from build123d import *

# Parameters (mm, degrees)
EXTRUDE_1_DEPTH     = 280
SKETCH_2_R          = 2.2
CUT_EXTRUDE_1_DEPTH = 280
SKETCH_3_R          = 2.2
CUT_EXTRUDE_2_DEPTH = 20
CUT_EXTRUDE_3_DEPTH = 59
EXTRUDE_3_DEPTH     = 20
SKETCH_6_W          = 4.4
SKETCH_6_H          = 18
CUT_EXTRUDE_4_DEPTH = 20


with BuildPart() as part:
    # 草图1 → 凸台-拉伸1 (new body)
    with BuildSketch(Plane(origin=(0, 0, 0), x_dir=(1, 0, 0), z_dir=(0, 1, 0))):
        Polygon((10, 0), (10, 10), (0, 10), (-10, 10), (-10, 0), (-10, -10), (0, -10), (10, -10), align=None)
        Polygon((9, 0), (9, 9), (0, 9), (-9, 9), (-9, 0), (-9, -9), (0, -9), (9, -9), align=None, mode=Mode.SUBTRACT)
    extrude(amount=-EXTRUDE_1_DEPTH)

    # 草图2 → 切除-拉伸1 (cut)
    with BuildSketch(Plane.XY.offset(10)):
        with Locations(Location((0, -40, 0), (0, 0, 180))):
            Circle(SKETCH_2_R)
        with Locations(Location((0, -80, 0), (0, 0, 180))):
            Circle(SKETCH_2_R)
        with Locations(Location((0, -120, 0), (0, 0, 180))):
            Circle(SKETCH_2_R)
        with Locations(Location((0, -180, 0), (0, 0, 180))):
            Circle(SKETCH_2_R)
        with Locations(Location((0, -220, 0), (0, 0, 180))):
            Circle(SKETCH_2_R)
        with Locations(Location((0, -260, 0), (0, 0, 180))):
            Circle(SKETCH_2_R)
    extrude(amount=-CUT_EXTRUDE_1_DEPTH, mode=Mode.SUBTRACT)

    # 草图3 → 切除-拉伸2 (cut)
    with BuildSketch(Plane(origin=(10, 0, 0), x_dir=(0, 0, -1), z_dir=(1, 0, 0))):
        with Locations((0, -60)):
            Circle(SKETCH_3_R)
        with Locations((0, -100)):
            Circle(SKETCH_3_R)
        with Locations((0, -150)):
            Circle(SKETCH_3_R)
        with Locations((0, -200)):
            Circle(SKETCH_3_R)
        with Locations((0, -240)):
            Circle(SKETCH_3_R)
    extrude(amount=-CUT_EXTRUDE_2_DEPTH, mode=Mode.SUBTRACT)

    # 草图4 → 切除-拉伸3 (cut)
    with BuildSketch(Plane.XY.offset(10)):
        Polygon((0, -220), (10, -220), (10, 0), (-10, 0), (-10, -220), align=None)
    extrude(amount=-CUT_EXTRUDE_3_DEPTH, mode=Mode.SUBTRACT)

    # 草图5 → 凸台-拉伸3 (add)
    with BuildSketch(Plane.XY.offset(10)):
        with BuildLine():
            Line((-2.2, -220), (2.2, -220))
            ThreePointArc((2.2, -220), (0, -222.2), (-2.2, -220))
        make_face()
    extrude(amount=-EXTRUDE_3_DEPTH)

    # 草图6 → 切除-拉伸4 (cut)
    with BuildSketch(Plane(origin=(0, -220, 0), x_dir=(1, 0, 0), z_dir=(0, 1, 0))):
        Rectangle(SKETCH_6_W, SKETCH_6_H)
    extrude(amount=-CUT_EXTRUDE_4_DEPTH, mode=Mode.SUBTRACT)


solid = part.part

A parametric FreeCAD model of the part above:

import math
import FreeCAD as App
import Part
import Sketcher

V = App.Vector

doc = App.newDocument("Part")
body = doc.addObject("PartDesign::Body", "Body")

# Sketch on XZ plane
sketch1 = doc.addObject("Sketcher::SketchObject", "Sketch")
body.addObject(sketch1)
sketch1.AttachmentSupport = (doc.XZ_Plane, [""])
sketch1.MapMode = "FlatFace"
sketch1.addGeometry(Part.LineSegment(V(10, -10, 0), V(-10, -10, 0)), False)
sketch1.addGeometry(Part.LineSegment(V(-10, -10, 0), V(-10, 10, 0)), False)
sketch1.addGeometry(Part.LineSegment(V(-10, 10, 0), V(10, 10, 0)), False)
sketch1.addGeometry(Part.LineSegment(V(10, 10, 0), V(10, -10, 0)), False)
sketch1.addGeometry(Part.LineSegment(V(9, -9, 0), V(9, 9, 0)), False)
sketch1.addGeometry(Part.LineSegment(V(9, 9, 0), V(-9, 9, 0)), False)
sketch1.addGeometry(Part.LineSegment(V(-9, 9, 0), V(-9, -9, 0)), False)
sketch1.addGeometry(Part.LineSegment(V(-9, -9, 0), V(9, -9, 0)), False)
sketch1.addConstraint(Sketcher.Constraint("Coincident", 0, 2, 1, 1))
sketch1.addConstraint(Sketcher.Constraint("Coincident", 1, 2, 2, 1))
sketch1.addConstraint(Sketcher.Constraint("Coincident", 2, 2, 3, 1))
sketch1.addConstraint(Sketcher.Constraint("Coincident", 3, 2, 0, 1))
sketch1.addConstraint(Sketcher.Constraint("Coincident", 4, 2, 5, 1))
sketch1.addConstraint(Sketcher.Constraint("Coincident", 5, 2, 6, 1))
sketch1.addConstraint(Sketcher.Constraint("Coincident", 6, 2, 7, 1))
sketch1.addConstraint(Sketcher.Constraint("Coincident", 7, 2, 4, 1))
sketch1.addConstraint(Sketcher.Constraint("Horizontal", 0))
sketch1.addConstraint(Sketcher.Constraint("Vertical", 1))
sketch1.addConstraint(Sketcher.Constraint("Horizontal", 2))
sketch1.addConstraint(Sketcher.Constraint("Vertical", 3))
sketch1.addConstraint(Sketcher.Constraint("Vertical", 4))
sketch1.addConstraint(Sketcher.Constraint("Horizontal", 5))
sketch1.addConstraint(Sketcher.Constraint("Vertical", 6))
sketch1.addConstraint(Sketcher.Constraint("Horizontal", 7))
sketch1.addConstraint(Sketcher.Constraint("Symmetric", 0, 2, 2, 2, -1, 1))
sketch1.addConstraint(Sketcher.Constraint("Symmetric", 4, 2, 6, 2, -1, 1))
sketch1.addConstraint(Sketcher.Constraint("Equal", 2, 1))
sketch1.addConstraint(Sketcher.Constraint("Equal", 7, 4))
sketch1.addConstraint(Sketcher.Constraint("DistanceX", 0, 2, 0, 1, 20.0))
sketch1.addConstraint(Sketcher.Constraint("DistanceX", 5, 2, 5, 1, 18.0))
pad1 = doc.addObject("PartDesign::Pad", "Pad")
body.addObject(pad1)
pad1.Profile = sketch1
pad1.Length = 280

# Sketch on XY plane
sketch2 = doc.addObject("Sketcher::SketchObject", "Sketch001")
body.addObject(sketch2)
sketch2.AttachmentSupport = (doc.XY_Plane, [""])
sketch2.MapMode = "FlatFace"
sketch2.AttachmentOffset = App.Placement(V(0, 0, 10), App.Rotation())
sketch2.addGeometry(Part.Circle(V(0, -40, 0), V(0, 0, 1), 2.2), False)
sketch2.addGeometry(Part.Circle(V(0, -80, 0), V(0, 0, 1), 2.2), False)
sketch2.addGeometry(Part.Circle(V(0, -120, 0), V(0, 0, 1), 2.2), False)
sketch2.addGeometry(Part.Circle(V(0, -180, 0), V(0, 0, 1), 2.2), False)
sketch2.addGeometry(Part.Circle(V(0, -220, 0), V(0, 0, 1), 2.2), False)
sketch2.addGeometry(Part.Circle(V(0, -260, 0), V(0, 0, 1), 2.2), False)
sketch2.addConstraint(Sketcher.Constraint("Equal", 0, 1))
sketch2.addConstraint(Sketcher.Constraint("Equal", 1, 2))
sketch2.addConstraint(Sketcher.Constraint("Equal", 2, 3))
sketch2.addConstraint(Sketcher.Constraint("Equal", 3, 4))
sketch2.addConstraint(Sketcher.Constraint("Equal", 4, 5))
sketch2.addConstraint(Sketcher.Constraint("PointOnObject", 0, 3, -2))
sketch2.addConstraint(Sketcher.Constraint("PointOnObject", 1, 3, -2))
sketch2.addConstraint(Sketcher.Constraint("PointOnObject", 2, 3, -2))
sketch2.addConstraint(Sketcher.Constraint("PointOnObject", 3, 3, -2))
sketch2.addConstraint(Sketcher.Constraint("PointOnObject", 4, 3, -2))
sketch2.addConstraint(Sketcher.Constraint("PointOnObject", 5, 3, -2))
sketch2.addConstraint(Sketcher.Constraint("Diameter", 0, 4.4))
sketch2.addConstraint(Sketcher.Constraint("DistanceY", 0, 3, -1, 1, 40.0))
sketch2.addConstraint(Sketcher.Constraint("DistanceY", 1, 3, -1, 1, 80.0))
sketch2.addConstraint(Sketcher.Constraint("DistanceY", 2, 3, -1, 1, 120.0))
sketch2.addConstraint(Sketcher.Constraint("DistanceY", 3, 3, -1, 1, 180.0))
sketch2.addConstraint(Sketcher.Constraint("DistanceY", 4, 3, -1, 1, 220.0))
sketch2.addConstraint(Sketcher.Constraint("DistanceY", 5, 3, -1, 1, 260.0))
pocket1 = doc.addObject("PartDesign::Pocket", "Pocket")
body.addObject(pocket1)
pocket1.Profile = sketch2
pocket1.Length = 280

# Sketch on YZ plane
sketch3 = doc.addObject("Sketcher::SketchObject", "Sketch002")
body.addObject(sketch3)
sketch3.AttachmentSupport = (doc.YZ_Plane, [""])
sketch3.MapMode = "FlatFace"
sketch3.AttachmentOffset = App.Placement(V(0, 0, 10), App.Rotation())
sketch3.addGeometry(Part.Circle(V(-60, 0, 0), V(0, 0, 1), 2.2), False)
sketch3.addGeometry(Part.Circle(V(-100, 0, 0), V(0, 0, 1), 2.2), False)
sketch3.addGeometry(Part.Circle(V(-150, 0, 0), V(0, 0, 1), 2.2), False)
sketch3.addGeometry(Part.Circle(V(-200, 0, 0), V(0, 0, 1), 2.2), False)
sketch3.addGeometry(Part.Circle(V(-240, 0, 0), V(0, 0, 1), 2.2), False)
sketch3.addConstraint(Sketcher.Constraint("Equal", 0, 1))
sketch3.addConstraint(Sketcher.Constraint("Equal", 1, 2))
sketch3.addConstraint(Sketcher.Constraint("Equal", 2, 3))
sketch3.addConstraint(Sketcher.Constraint("Equal", 3, 4))
sketch3.addConstraint(Sketcher.Constraint("PointOnObject", 0, 3, -1))
sketch3.addConstraint(Sketcher.Constraint("PointOnObject", 1, 3, -1))
sketch3.addConstraint(Sketcher.Constraint("PointOnObject", 2, 3, -1))
sketch3.addConstraint(Sketcher.Constraint("PointOnObject", 3, 3, -1))
sketch3.addConstraint(Sketcher.Constraint("PointOnObject", 4, 3, -1))
sketch3.addConstraint(Sketcher.Constraint("Diameter", 0, 4.4))
sketch3.addConstraint(Sketcher.Constraint("DistanceX", 0, 3, -1, 1, 60.0))
sketch3.addConstraint(Sketcher.Constraint("DistanceX", 1, 3, -1, 1, 100.0))
sketch3.addConstraint(Sketcher.Constraint("DistanceX", 2, 3, -1, 1, 150.0))
sketch3.addConstraint(Sketcher.Constraint("DistanceX", 3, 3, -1, 1, 200.0))
sketch3.addConstraint(Sketcher.Constraint("DistanceX", 4, 3, -1, 1, 240.0))
pocket2 = doc.addObject("PartDesign::Pocket", "Pocket001")
body.addObject(pocket2)
pocket2.Profile = sketch3
pocket2.Length = 20

# Sketch on XY plane
sketch4 = doc.addObject("Sketcher::SketchObject", "Sketch003")
body.addObject(sketch4)
sketch4.AttachmentSupport = (doc.XY_Plane, [""])
sketch4.MapMode = "FlatFace"
sketch4.AttachmentOffset = App.Placement(V(0, 0, 10), App.Rotation())
sketch4.addGeometry(Part.LineSegment(V(10, -220, 0), V(10, 0, 0)), False)
sketch4.addGeometry(Part.LineSegment(V(10, 0, 0), V(-10, 0, 0)), False)
sketch4.addGeometry(Part.LineSegment(V(-10, 0, 0), V(-10, -220, 0)), False)
sketch4.addGeometry(Part.LineSegment(V(-10, -220, 0), V(10, -220, 0)), False)
sketch4.addConstraint(Sketcher.Constraint("Coincident", 0, 2, 1, 1))
sketch4.addConstraint(Sketcher.Constraint("Coincident", 1, 2, 2, 1))
sketch4.addConstraint(Sketcher.Constraint("Coincident", 2, 2, 3, 1))
sketch4.addConstraint(Sketcher.Constraint("Coincident", 3, 2, 0, 1))
sketch4.addConstraint(Sketcher.Constraint("Vertical", 0))
sketch4.addConstraint(Sketcher.Constraint("Horizontal", 1))
sketch4.addConstraint(Sketcher.Constraint("Vertical", 2))
sketch4.addConstraint(Sketcher.Constraint("Horizontal", 3))
sketch4.addConstraint(Sketcher.Constraint("Symmetric", 0, 2, 1, 2, -1, 1))
sketch4.addConstraint(Sketcher.Constraint("DistanceX", 1, 2, 1, 1, 20.0))
sketch4.addConstraint(Sketcher.Constraint("DistanceY", 0, 1, 0, 2, 220.0))
pocket3 = doc.addObject("PartDesign::Pocket", "Pocket002")
body.addObject(pocket3)
pocket3.Profile = sketch4
pocket3.Length = 59

# Sketch on XY plane
sketch5 = doc.addObject("Sketcher::SketchObject", "Sketch004")
body.addObject(sketch5)
sketch5.AttachmentSupport = (doc.XY_Plane, [""])
sketch5.MapMode = "FlatFace"
sketch5.AttachmentOffset = App.Placement(V(0, 0, 10), App.Rotation())
sketch5.addGeometry(Part.LineSegment(V(2.2, -220, 0), V(-2.2, -220, 0)), False)
sketch5.addGeometry(Part.ArcOfCircle(Part.Circle(V(0, -220, 0), V(0, 0, 1), 2.2), math.radians(180), math.radians(360)), False)
sketch5.addConstraint(Sketcher.Constraint("Coincident", 0, 1, 1, 2))
sketch5.addConstraint(Sketcher.Constraint("Coincident", 1, 1, 0, 2))
sketch5.addConstraint(Sketcher.Constraint("Horizontal", 0))
sketch5.addConstraint(Sketcher.Constraint("PointOnObject", 1, 3, -2))
sketch5.addConstraint(Sketcher.Constraint("Horizontal", 1, 3, 0, 1))
sketch5.addConstraint(Sketcher.Constraint("Radius", 1, 2.2))
sketch5.addConstraint(Sketcher.Constraint("DistanceY", 1, 3, -1, 1, 220.0))
pad2 = doc.addObject("PartDesign::Pad", "Pad001")
body.addObject(pad2)
pad2.Profile = sketch5
pad2.Length = 20
pad2.Reversed = True

# Sketch on XZ plane
sketch6 = doc.addObject("Sketcher::SketchObject", "Sketch005")
body.addObject(sketch6)
sketch6.AttachmentSupport = (doc.XZ_Plane, [""])
sketch6.MapMode = "FlatFace"
sketch6.AttachmentOffset = App.Placement(V(0, 0, 220), App.Rotation())
sketch6.addGeometry(Part.LineSegment(V(-2.2, -9, 0), V(-2.2, 9, 0)), False)
sketch6.addGeometry(Part.LineSegment(V(-2.2, 9, 0), V(2.2, 9, 0)), False)
sketch6.addGeometry(Part.LineSegment(V(2.2, 9, 0), V(2.2, -9, 0)), False)
sketch6.addGeometry(Part.LineSegment(V(2.2, -9, 0), V(-2.2, -9, 0)), False)
sketch6.addConstraint(Sketcher.Constraint("Coincident", 0, 2, 1, 1))
sketch6.addConstraint(Sketcher.Constraint("Coincident", 1, 2, 2, 1))
sketch6.addConstraint(Sketcher.Constraint("Coincident", 2, 2, 3, 1))
sketch6.addConstraint(Sketcher.Constraint("Coincident", 3, 2, 0, 1))
sketch6.addConstraint(Sketcher.Constraint("Vertical", 0))
sketch6.addConstraint(Sketcher.Constraint("Horizontal", 1))
sketch6.addConstraint(Sketcher.Constraint("Vertical", 2))
sketch6.addConstraint(Sketcher.Constraint("Horizontal", 3))
sketch6.addConstraint(Sketcher.Constraint("Symmetric", 0, 2, 2, 2, -1, 1))
sketch6.addConstraint(Sketcher.Constraint("DistanceY", 0, 1, 0, 2, 18.0))
sketch6.addConstraint(Sketcher.Constraint("DistanceX", 1, 1, 1, 2, 4.4))
pocket4 = doc.addObject("PartDesign::Pocket", "Pocket003")
body.addObject(pocket4)
pocket4.Profile = sketch6
pocket4.Length = 20
pocket4.Reversed = True

doc.recompute()
